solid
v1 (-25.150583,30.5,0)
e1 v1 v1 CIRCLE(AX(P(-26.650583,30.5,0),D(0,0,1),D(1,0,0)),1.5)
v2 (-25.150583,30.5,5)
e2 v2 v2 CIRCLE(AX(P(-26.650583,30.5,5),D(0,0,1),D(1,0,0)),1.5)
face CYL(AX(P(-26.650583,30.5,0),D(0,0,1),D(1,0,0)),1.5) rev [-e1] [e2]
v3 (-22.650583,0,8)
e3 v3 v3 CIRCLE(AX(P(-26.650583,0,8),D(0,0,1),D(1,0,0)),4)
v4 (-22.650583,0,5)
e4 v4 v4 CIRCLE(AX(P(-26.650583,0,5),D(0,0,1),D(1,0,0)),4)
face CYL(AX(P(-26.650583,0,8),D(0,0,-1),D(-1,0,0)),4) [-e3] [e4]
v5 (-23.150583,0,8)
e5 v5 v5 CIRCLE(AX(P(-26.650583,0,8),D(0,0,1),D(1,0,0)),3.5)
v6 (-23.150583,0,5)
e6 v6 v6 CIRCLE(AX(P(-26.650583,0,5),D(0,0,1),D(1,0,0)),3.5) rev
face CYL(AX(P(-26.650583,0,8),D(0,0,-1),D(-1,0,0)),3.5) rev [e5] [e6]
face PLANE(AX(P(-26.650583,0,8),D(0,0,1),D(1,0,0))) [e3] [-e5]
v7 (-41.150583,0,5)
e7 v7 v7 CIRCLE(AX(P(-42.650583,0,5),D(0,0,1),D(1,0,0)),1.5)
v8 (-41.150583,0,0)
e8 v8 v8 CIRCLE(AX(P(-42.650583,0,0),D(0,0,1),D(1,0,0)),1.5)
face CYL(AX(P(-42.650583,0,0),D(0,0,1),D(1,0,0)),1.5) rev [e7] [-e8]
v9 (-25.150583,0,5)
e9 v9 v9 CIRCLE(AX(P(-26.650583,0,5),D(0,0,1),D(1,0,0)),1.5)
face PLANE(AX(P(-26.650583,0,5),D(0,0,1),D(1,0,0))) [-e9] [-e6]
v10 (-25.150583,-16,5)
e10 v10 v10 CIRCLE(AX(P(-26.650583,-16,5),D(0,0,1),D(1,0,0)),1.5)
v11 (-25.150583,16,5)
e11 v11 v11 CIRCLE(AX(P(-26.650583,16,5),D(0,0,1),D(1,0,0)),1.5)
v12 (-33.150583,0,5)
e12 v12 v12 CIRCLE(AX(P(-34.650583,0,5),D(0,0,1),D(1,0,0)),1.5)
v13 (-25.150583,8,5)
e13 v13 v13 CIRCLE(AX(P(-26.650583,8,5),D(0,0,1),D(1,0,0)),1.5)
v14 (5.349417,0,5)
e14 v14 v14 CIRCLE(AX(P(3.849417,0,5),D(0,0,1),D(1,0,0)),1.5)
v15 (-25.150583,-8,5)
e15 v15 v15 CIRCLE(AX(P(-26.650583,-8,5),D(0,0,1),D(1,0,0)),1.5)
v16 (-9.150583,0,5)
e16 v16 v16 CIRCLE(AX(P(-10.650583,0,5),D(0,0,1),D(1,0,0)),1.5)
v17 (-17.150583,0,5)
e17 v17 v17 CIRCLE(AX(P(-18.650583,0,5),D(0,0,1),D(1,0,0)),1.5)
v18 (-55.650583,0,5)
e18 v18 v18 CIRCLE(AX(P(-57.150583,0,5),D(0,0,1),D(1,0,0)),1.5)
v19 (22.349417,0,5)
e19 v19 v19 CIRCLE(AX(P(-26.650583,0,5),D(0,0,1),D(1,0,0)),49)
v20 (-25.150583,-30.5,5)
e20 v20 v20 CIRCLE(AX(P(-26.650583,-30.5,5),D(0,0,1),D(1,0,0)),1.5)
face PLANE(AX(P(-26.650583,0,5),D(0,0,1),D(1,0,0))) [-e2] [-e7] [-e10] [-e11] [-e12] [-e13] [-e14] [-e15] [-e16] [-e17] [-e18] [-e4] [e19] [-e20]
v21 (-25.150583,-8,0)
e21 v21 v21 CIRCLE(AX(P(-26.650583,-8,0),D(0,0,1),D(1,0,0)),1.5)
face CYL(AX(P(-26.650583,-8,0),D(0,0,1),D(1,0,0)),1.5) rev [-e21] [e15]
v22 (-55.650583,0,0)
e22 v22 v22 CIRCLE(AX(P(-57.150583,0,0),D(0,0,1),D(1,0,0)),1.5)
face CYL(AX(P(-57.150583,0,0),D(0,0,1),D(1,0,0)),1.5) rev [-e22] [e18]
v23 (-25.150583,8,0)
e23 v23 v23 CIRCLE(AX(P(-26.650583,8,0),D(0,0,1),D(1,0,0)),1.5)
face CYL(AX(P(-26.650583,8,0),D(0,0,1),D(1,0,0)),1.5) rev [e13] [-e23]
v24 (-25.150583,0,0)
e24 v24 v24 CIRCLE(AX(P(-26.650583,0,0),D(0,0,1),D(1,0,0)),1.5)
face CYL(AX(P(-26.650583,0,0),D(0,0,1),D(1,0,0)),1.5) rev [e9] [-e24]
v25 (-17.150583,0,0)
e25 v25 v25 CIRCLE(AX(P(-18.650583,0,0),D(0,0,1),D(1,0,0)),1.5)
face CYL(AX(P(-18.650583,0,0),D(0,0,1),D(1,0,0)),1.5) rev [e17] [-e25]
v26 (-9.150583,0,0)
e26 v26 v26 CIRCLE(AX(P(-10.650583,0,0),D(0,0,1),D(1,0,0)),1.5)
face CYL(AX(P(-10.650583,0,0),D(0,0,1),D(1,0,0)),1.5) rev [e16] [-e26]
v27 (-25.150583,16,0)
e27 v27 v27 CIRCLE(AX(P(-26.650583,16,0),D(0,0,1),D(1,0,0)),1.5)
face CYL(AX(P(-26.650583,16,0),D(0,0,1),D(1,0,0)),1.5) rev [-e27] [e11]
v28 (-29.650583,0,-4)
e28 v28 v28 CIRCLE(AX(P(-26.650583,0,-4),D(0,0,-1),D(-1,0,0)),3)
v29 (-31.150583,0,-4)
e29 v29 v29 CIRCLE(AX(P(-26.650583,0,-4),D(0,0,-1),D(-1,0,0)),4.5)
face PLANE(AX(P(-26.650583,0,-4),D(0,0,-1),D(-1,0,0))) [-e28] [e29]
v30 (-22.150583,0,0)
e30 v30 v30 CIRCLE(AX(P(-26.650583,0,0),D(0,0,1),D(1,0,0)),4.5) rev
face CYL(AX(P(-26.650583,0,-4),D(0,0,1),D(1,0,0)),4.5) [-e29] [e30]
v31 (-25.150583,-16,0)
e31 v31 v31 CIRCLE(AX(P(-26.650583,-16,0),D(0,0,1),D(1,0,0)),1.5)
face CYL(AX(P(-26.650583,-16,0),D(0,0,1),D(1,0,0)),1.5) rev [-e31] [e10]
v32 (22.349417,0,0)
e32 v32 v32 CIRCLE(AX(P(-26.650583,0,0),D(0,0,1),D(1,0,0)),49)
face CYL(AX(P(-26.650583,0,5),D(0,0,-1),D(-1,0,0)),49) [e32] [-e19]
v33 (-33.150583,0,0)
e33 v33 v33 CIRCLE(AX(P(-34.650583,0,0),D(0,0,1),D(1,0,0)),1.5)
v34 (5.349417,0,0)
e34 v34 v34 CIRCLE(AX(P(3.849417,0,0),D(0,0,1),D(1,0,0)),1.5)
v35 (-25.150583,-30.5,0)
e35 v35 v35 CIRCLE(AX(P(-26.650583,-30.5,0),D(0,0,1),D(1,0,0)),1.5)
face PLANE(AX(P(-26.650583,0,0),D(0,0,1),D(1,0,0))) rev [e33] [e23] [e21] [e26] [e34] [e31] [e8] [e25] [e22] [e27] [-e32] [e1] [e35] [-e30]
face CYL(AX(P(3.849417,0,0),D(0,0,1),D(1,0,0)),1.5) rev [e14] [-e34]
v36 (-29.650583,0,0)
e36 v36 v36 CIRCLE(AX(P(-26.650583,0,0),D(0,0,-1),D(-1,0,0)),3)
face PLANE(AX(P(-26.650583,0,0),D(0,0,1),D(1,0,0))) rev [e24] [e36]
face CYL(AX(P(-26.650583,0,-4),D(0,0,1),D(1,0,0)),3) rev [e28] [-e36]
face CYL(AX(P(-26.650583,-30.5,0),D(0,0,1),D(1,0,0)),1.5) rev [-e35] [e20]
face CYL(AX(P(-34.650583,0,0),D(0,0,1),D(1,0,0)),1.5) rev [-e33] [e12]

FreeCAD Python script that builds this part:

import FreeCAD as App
import Part
import Sketcher

V = App.Vector
Q = App.Units.Quantity

doc = App.newDocument("Part")
params = doc.addObject("Spreadsheet::Sheet", "Params")
for row, (alias, value) in enumerate([
    ("sketch1_diameter", "98 mm"),
    ("pad1_length", "5 mm"),
    ("sketch2_diameter", "9 mm"),
    ("sketch2_diameter2", "6 mm"),
    ("pad2_length", "4 mm"),
    ("sketch3_diameter", "9 mm"),
    ("sketch3_diameter2", "6 mm"),
    ("pad3_length", "4 mm"),
    ("sketch4_diameter", "8 mm"),
    ("sketch4_diameter2", "7 mm"),
    ("pad4_length", "3 mm"),
    ("sketch5_diameter", "3 mm"),
    ("pocket1_length", "5 mm"),
    ("sketch6_diameter", "3 mm"),
    ("pocket2_length", "5 mm"),
], start=1):
    params.set(f"A{row}", alias)
    params.set(f"B{row}", "=" + value)
    params.setAlias(f"B{row}", alias)

body = doc.addObject("PartDesign::Body", "Body")

# Sketch on XY plane
sketch1 = body.newObject("Sketcher::SketchObject", "Sketch")
sketch1.AttachmentSupport = (doc.getObject("XY_Plane"), [""])
sketch1.MapMode = "FlatFace"
sketch1.addGeometry(Part.Circle(V(-27, 0, 0), V(0, 0, 1), 49), False)
sketch1.addConstraint(Sketcher.Constraint("PointOnObject", 0, 3, -1))
sketch1.addConstraint(Sketcher.Constraint("Diameter", 0, Q("98 mm")))
sketch1.addConstraint(Sketcher.Constraint("DistanceX", 0, 3, -1, 1, Q("26.650583 mm")))
sketch1.setExpression("Constraints[1]", "Params.sketch1_diameter")
pad1 = body.newObject("PartDesign::Pad", "Pad")
pad1.Profile = sketch1
pad1.setExpression("Length", "Params.pad1_length")

# Sketch on XY plane
sketch2 = body.newObject("Sketcher::SketchObject", "Sketch001")
sketch2.AttachmentSupport = (doc.getObject("XY_Plane"), [""])
sketch2.MapMode = "FlatFace"
sketch2.addGeometry(Part.Circle(V(-26.7, 0, 0), V(0, 0, 1), 4.5), False)
sketch2.addGeometry(Part.Circle(V(-26.7, 0, 0), V(0, 0, 1), 3), False)
sketch2.addConstraint(Sketcher.Constraint("Coincident", 1, 3, 0, 3))
sketch2.addConstraint(Sketcher.Constraint("PointOnObject", 0, 3, -1))
sketch2.addConstraint(Sketcher.Constraint("Diameter", 0, Q("9 mm")))
sketch2.addConstraint(Sketcher.Constraint("Diameter", 1, Q("6 mm")))
sketch2.addConstraint(Sketcher.Constraint("DistanceX", 0, 3, -1, 1, Q("26.650583 mm")))
sketch2.setExpression("Constraints[2]", "Params.sketch2_diameter")
sketch2.setExpression("Constraints[3]", "Params.sketch2_diameter2")
pad2 = body.newObject("PartDesign::Pad", "Pad001")
pad2.Profile = sketch2
pad2.setExpression("Length", "Params.pad2_length")

# Sketch on XY plane
sketch3 = body.newObject("Sketcher::SketchObject", "Sketch002")
sketch3.AttachmentSupport = (doc.getObject("XY_Plane"), [""])
sketch3.MapMode = "FlatFace"
sketch3.addGeometry(Part.Circle(V(-26.7, 0, 0), V(0, 0, 1), 4.5), False)
sketch3.addGeometry(Part.Circle(V(-26.7, 0, 0), V(0, 0, 1), 3), False)
sketch3.addConstraint(Sketcher.Constraint("Coincident", 1, 3, 0, 3))
sketch3.addConstraint(Sketcher.Constraint("PointOnObject", 0, 3, -1))
sketch3.addConstraint(Sketcher.Constraint("Diameter", 0, Q("9 mm")))
sketch3.addConstraint(Sketcher.Constraint("Diameter", 1, Q("6 mm")))
sketch3.addConstraint(Sketcher.Constraint("DistanceX", 0, 3, -1, 1, Q("26.650583 mm")))
sketch3.setExpression("Constraints[2]", "Params.sketch3_diameter")
sketch3.setExpression("Constraints[3]", "Params.sketch3_diameter2")
pad3 = body.newObject("PartDesign::Pad", "Pad002")
pad3.Profile = sketch3
pad3.setExpression("Length", "Params.pad3_length")
pad3.Reversed = True

# Sketch on XY plane
sketch4 = body.newObject("Sketcher::SketchObject", "Sketch003")
sketch4.AttachmentSupport = (doc.getObject("XY_Plane"), [""])
sketch4.MapMode = "FlatFace"
sketch4.AttachmentOffset = App.Placement(V(0, 0, 5), App.Rotation())
sketch4.addGeometry(Part.Circle(V(-26.7, 0, 0), V(0, 0, 1), 4), False)
sketch4.addGeometry(Part.Circle(V(-26.7, 0, 0), V(0, 0, 1), 3.5), False)
sketch4.addConstraint(Sketcher.Constraint("Coincident", 1, 3, 0, 3))
sketch4.addConstraint(Sketcher.Constraint("PointOnObject", 0, 3, -1))
sketch4.addConstraint(Sketcher.Constraint("Diameter", 0, Q("8 mm")))
sketch4.addConstraint(Sketcher.Constraint("Diameter", 1, Q("7 mm")))
sketch4.addConstraint(Sketcher.Constraint("DistanceX", 0, 3, -1, 1, Q("26.650583 mm")))
sketch4.setExpression("Constraints[2]", "Params.sketch4_diameter")
sketch4.setExpression("Constraints[3]", "Params.sketch4_diameter2")
pad4 = body.newObject("PartDesign::Pad", "Pad003")
pad4.Profile = sketch4
pad4.setExpression("Length", "Params.pad4_length")

# Sketch on XY plane
sketch5 = body.newObject("Sketcher::SketchObject", "Sketch004")
sketch5.AttachmentSupport = (doc.getObject("XY_Plane"), [""])
sketch5.MapMode = "FlatFace"
sketch5.AttachmentOffset = App.Placement(V(0, 0, 5), App.Rotation())
sketch5.addGeometry(Part.Circle(V(-26.7, 0, 0), V(0, 0, 1), 1.5), False)
sketch5.addConstraint(Sketcher.Constraint("PointOnObject", 0, 3, -1))
sketch5.addConstraint(Sketcher.Constraint("Diameter", 0, Q("3 mm")))
sketch5.addConstraint(Sketcher.Constraint("DistanceX", 0, 3, -1, 1, Q("26.650583 mm")))
sketch5.setExpression("Constraints[1]", "Params.sketch5_diameter")
pocket1 = body.newObject("PartDesign::Pocket", "Pocket")
pocket1.Profile = sketch5
pocket1.setExpression("Length", "Params.pocket1_length")

# Sketch on XY plane
sketch6 = body.newObject("Sketcher::SketchObject", "Sketch005")
sketch6.AttachmentSupport = (doc.getObject("XY_Plane"), [""])
sketch6.MapMode = "FlatFace"
sketch6.AttachmentOffset = App.Placement(V(0, 0, 5), App.Rotation())
sketch6.addGeometry(Part.Circle(V(-34.7, 0, 0), V(0, 0, 1), 1.5), False)
sketch6.addGeometry(Part.Circle(V(-42.7, 0, 0), V(0, 0, 1), 1.5), False)
sketch6.addGeometry(Part.Circle(V(-57.2, 0, 0), V(0, 0, 1), 1.5), False)
sketch6.addGeometry(Part.Circle(V(-26.7, 8, 0), V(0, 0, 1), 1.5), False)
sketch6.addGeometry(Part.Circle(V(-26.7, 16, 0), V(0, 0, 1), 1.5), False)
sketch6.addGeometry(Part.Circle(V(-26.7, 30.5, 0), V(0, 0, 1), 1.5), False)
sketch6.addGeometry(Part.Circle(V(-18.7, 0, 0), V(0, 0, 1), 1.5), False)
sketch6.addGeometry(Part.Circle(V(-10.7, 0, 0), V(0, 0, 1), 1.5), False)
sketch6.addGeometry(Part.Circle(V(3.8, 0, 0), V(0, 0, 1), 1.5), False)
sketch6.addGeometry(Part.Circle(V(-26.7, -8, 0), V(0, 0, 1), 1.5), False)
sketch6.addGeometry(Part.Circle(V(-26.7, -16, 0), V(0, 0, 1), 1.5), False)
sketch6.addGeometry(Part.Circle(V(-26.7, -30.5, 0), V(0, 0, 1), 1.5), False)
sketch6.addConstraint(Sketcher.Constraint("Equal", 0, 1))
sketch6.addConstraint(Sketcher.Constraint("Equal", 1, 2))
sketch6.addConstraint(Sketcher.Constraint("Equal", 2, 3))
sketch6.addConstraint(Sketcher.Constraint("Equal", 3, 4))
sketch6.addConstraint(Sketcher.Constraint("Equal", 4, 5))
sketch6.addConstraint(Sketcher.Constraint("Equal", 5, 6))
sketch6.addConstraint(Sketcher.Constraint("Equal", 6, 7))
sketch6.addConstraint(Sketcher.Constraint("Equal", 7, 8))
sketch6.addConstraint(Sketcher.Constraint("Equal", 8, 9))
sketch6.addConstraint(Sketcher.Constraint("Equal", 9, 10))
sketch6.addConstraint(Sketcher.Constraint("Equal", 10, 11))
sketch6.addConstraint(Sketcher.Constraint("Symmetric", 3, 3, 9, 3, -1))
sketch6.addConstraint(Sketcher.Constraint("Symmetric", 4, 3, 10, 3, -1))
sketch6.addConstraint(Sketcher.Constraint("Symmetric", 5, 3, 11, 3, -1))
sketch6.addConstraint(Sketcher.Constraint("PointOnObject", 0, 3, -1))
sketch6.addConstraint(Sketcher.Constraint("PointOnObject", 1, 3, -1))
sketch6.addConstraint(Sketcher.Constraint("PointOnObject", 2, 3, -1))
sketch6.addConstraint(Sketcher.Constraint("PointOnObject", 6, 3, -1))
sketch6.addConstraint(Sketcher.Constraint("PointOnObject", 7, 3, -1))
sketch6.addConstraint(Sketcher.Constraint("PointOnObject", 8, 3, -1))
sketch6.addConstraint(Sketcher.Constraint("Vertical", 3, 3, 4, 3))
sketch6.addConstraint(Sketcher.Constraint("Vertical", 4, 3, 5, 3))
sketch6.addConstraint(Sketcher.Constraint("Diameter", 0, Q("3 mm")))
sketch6.addConstraint(Sketcher.Constraint("DistanceY", -1, 1, 3, 3, Q("8 mm")))
sketch6.addConstraint(Sketcher.Constraint("DistanceY", -1, 1, 4, 3, Q("16 mm")))
sketch6.addConstraint(Sketcher.Constraint("DistanceX", 1, 3, 0, 3, Q("8 mm")))
sketch6.addConstraint(Sketcher.Constraint("DistanceX", 0, 3, 3, 3, Q("8 mm")))
sketch6.addConstraint(Sketcher.Constraint("DistanceX", 3, 3, 6, 3, Q("8 mm")))
sketch6.addConstraint(Sketcher.Constraint("DistanceX", 6, 3, 7, 3, Q("8 mm")))
sketch6.addConstraint(Sketcher.Constraint("DistanceY", -1, 1, 5, 3, Q("30.5 mm")))
sketch6.addConstraint(Sketcher.Constraint("DistanceX", 2, 3, 1, 3, Q("14.5 mm")))
sketch6.addConstraint(Sketcher.Constraint("DistanceX", 7, 3, 8, 3, Q("14.5 mm")))
sketch6.addConstraint(Sketcher.Constraint("DistanceX", 0, 3, -1, 1, Q("34.650583 mm")))
sketch6.setExpression("Constraints[22]", "Params.sketch6_diameter")
pocket2 = body.newObject("PartDesign::Pocket", "Pocket001")
pocket2.Profile = sketch6
pocket2.setExpression("Length", "Params.pocket2_length")

doc.recompute()
